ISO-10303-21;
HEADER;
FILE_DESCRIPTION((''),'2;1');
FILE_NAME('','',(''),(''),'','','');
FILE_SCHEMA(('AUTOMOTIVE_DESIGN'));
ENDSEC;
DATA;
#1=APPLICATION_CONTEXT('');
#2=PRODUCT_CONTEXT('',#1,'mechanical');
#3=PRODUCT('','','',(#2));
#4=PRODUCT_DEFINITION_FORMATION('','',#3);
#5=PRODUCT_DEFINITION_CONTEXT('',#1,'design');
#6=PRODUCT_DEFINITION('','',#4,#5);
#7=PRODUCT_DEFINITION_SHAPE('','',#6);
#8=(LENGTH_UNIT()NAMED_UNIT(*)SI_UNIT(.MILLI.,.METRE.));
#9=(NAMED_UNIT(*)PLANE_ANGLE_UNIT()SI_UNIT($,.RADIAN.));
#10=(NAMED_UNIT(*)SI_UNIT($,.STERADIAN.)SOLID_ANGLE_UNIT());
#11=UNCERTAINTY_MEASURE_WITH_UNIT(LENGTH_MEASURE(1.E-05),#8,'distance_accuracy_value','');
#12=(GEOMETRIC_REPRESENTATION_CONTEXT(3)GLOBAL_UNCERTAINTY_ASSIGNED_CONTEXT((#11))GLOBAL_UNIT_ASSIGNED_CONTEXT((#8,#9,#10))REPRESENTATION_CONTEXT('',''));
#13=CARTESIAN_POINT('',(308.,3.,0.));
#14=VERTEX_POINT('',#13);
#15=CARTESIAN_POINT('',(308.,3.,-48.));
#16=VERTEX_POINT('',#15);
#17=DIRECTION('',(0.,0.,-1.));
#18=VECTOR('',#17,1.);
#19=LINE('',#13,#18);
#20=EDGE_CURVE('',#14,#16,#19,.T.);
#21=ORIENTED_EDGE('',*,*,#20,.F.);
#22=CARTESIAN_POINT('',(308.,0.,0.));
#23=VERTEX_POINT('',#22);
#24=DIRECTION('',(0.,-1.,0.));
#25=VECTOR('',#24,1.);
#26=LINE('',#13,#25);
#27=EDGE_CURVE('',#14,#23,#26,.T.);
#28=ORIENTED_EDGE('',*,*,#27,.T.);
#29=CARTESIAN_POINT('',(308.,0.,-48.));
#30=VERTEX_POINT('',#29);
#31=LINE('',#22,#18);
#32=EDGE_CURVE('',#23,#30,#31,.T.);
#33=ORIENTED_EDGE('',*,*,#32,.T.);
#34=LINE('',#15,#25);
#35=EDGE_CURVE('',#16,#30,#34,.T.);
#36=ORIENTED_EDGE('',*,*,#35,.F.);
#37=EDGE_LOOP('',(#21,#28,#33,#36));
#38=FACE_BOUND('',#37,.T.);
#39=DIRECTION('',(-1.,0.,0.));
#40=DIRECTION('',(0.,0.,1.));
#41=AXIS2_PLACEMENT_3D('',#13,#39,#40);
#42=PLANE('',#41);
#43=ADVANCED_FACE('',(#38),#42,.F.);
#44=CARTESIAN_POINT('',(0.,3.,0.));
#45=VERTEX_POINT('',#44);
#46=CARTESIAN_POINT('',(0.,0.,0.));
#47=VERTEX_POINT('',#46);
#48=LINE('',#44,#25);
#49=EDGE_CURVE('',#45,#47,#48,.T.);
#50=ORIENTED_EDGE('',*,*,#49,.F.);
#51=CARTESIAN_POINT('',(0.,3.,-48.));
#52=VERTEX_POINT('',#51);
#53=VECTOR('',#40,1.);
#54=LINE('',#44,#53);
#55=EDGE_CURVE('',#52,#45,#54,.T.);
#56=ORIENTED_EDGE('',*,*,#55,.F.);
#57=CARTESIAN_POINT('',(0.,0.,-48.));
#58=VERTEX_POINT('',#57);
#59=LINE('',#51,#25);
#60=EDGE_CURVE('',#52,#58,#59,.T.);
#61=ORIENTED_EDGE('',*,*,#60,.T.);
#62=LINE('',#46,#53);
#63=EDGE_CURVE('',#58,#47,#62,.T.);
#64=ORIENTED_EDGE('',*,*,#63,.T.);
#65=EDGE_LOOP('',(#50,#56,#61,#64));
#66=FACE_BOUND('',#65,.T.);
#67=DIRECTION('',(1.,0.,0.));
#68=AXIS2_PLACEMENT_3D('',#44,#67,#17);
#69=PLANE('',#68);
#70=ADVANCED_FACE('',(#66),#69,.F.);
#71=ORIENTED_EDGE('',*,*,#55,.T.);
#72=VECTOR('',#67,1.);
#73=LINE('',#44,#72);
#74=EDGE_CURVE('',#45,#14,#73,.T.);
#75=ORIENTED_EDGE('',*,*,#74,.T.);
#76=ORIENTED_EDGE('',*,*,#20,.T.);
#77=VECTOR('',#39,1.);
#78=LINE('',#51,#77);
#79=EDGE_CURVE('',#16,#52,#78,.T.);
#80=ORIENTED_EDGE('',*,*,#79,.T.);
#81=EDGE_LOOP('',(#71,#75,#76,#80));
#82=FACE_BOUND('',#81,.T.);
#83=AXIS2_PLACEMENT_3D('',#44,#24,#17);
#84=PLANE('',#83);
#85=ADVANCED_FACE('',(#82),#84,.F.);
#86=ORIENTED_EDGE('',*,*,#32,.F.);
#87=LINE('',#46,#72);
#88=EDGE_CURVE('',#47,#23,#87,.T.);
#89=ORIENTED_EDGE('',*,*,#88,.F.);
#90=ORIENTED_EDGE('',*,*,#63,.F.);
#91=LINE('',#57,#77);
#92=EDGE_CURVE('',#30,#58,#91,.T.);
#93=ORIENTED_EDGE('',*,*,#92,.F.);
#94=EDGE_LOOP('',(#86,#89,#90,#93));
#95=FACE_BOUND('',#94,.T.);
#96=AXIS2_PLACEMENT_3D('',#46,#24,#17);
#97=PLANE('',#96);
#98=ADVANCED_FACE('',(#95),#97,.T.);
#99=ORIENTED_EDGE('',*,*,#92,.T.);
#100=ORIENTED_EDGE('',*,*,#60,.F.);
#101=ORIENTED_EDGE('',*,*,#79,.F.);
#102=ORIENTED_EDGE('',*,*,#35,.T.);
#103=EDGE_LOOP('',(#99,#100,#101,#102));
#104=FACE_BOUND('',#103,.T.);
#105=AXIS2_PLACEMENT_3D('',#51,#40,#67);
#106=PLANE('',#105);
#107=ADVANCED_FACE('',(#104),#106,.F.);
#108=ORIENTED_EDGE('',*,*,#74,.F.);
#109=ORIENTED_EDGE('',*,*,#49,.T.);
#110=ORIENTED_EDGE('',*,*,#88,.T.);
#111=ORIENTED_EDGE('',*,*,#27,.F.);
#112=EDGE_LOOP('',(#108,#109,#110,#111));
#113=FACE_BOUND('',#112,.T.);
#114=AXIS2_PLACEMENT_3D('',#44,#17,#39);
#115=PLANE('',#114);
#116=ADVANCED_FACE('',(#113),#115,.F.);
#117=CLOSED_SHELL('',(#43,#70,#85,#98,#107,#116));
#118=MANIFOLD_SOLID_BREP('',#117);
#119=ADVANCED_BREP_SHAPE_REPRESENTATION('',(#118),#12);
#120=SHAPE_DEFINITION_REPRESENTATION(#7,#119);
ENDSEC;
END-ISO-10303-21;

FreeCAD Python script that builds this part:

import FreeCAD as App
import Part
import Sketcher


def add_polygon(sketch, points):
    """Adds a closed chain of lines whose ends are joined by coincident constraints."""
    first, n = sketch.GeometryCount, len(points)
    for a, b in zip(points, points[1:] + points[:1]):
        sketch.addGeometry(Part.LineSegment(App.Vector(*a, 0), App.Vector(*b, 0)), False)
    for i in range(n):
        sketch.addConstraint(Sketcher.Constraint("Coincident", first + i, 2, first + (i + 1) % n, 1))

doc = App.newDocument("Part")
body = doc.addObject("PartDesign::Body", "Body")

# Sketch on XZ plane
sketch1 = body.newObject("Sketcher::SketchObject", "Sketch")
sketch1.AttachmentSupport = (doc.getObject("XZ_Plane"), [""])
sketch1.MapMode = "FlatFace"
add_polygon(sketch1, [(0, -48), (0, 0), (308, 0), (308, -48)])  # lines 0-3
sketch1.addConstraint([
    Sketcher.Constraint("Vertical", 0),
    Sketcher.Constraint("Horizontal", 1),
    Sketcher.Constraint("Vertical", 2),
    Sketcher.Constraint("Horizontal", 3),
    Sketcher.Constraint("Coincident", 0, 2, -1, 1),
    Sketcher.Constraint("DistanceX", 1, 1, 1, 2, 308.0),
    Sketcher.Constraint("DistanceY", 0, 1, 0, 2, 48.0),
])
pad1 = body.newObject("PartDesign::Pad", "Pad")
pad1.Profile = sketch1
pad1.Length = 3
pad1.Reversed = True

doc.recompute()
